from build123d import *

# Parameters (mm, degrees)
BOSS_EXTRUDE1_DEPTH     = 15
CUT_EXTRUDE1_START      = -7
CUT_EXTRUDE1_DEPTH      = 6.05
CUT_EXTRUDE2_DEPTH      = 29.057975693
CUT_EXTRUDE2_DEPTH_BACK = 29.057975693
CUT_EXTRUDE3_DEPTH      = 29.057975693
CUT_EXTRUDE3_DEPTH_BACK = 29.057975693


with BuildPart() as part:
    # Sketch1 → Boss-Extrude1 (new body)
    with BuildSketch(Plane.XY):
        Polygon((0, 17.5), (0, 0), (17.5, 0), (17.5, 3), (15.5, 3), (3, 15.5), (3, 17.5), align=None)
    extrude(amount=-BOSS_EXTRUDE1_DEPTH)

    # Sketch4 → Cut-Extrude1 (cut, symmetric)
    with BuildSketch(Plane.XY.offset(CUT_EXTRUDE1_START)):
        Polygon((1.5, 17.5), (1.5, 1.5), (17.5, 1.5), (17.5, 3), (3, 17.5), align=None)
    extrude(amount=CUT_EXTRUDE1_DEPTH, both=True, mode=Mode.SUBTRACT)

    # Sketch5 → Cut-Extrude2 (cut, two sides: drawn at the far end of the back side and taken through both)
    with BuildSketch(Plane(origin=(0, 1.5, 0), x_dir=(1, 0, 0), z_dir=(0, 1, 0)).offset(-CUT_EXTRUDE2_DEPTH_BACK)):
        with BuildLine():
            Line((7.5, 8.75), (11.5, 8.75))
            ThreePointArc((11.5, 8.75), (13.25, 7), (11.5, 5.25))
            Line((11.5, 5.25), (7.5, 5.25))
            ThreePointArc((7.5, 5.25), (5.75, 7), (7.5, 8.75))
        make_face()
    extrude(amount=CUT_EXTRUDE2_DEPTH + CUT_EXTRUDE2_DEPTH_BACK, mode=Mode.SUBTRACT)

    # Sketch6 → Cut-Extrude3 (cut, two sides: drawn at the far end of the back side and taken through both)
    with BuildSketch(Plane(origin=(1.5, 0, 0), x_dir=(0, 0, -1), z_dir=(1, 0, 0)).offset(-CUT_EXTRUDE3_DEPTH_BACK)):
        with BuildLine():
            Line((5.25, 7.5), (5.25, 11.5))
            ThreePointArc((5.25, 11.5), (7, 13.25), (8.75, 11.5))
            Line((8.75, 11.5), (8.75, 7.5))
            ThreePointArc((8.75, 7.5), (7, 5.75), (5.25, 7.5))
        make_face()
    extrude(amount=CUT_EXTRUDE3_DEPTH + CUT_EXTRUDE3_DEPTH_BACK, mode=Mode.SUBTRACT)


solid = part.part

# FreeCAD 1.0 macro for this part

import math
import FreeCAD as App
import Part
import Sketcher

V = App.Vector

doc = App.newDocument("Part")
body = doc.addObject("PartDesign::Body", "Body")

# Sketch on XY plane
sketch1 = body.newObject("Sketcher::SketchObject", "Sketch")
sketch1.AttachmentSupport = (doc.getObject("XY_Plane"), [""])
sketch1.MapMode = "FlatFace"
sketch1.addGeometry([
    Part.LineSegment(V(0, 17.5, 0), V(0, 0, 0)),  # 0
    Part.LineSegment(V(0, 0, 0), V(17.5, 0, 0)),  # 1
    Part.LineSegment(V(17.5, 0, 0), V(17.5, 3, 0)),  # 2
    Part.LineSegment(V(17.5, 3, 0), V(15.5, 3, 0)),  # 3
    Part.LineSegment(V(15.5, 3, 0), V(3, 15.5, 0)),  # 4
    Part.LineSegment(V(3, 15.5, 0), V(3, 17.5, 0)),  # 5
    Part.LineSegment(V(3, 17.5, 0), V(0, 17.5, 0)),  # 6
], False)
sketch1.addConstraint([
    Sketcher.Constraint("Coincident", 0, 2, 1, 1),
    Sketcher.Constraint("Coincident", 1, 2, 2, 1),
    Sketcher.Constraint("Coincident", 2, 2, 3, 1),
    Sketcher.Constraint("Coincident", 3, 2, 4, 1),
    Sketcher.Constraint("Coincident", 4, 2, 5, 1),
    Sketcher.Constraint("Coincident", 5, 2, 6, 1),
    Sketcher.Constraint("Coincident", 6, 2, 0, 1),
    Sketcher.Constraint("Vertical", 0),
    Sketcher.Constraint("Horizontal", 1),
    Sketcher.Constraint("Vertical", 2),
    Sketcher.Constraint("Horizontal", 3),
    Sketcher.Constraint("Vertical", 5),
    Sketcher.Constraint("Horizontal", 6),
    Sketcher.Constraint("Coincident", 0, 2, -1, 1),
    Sketcher.Constraint("Equal", 1, 0),
    Sketcher.Constraint("Equal", 6, 2),
    Sketcher.Constraint("Equal", 3, 5),
    Sketcher.Constraint("DistanceX", 3, 2, 3, 1, 2.0),
    Sketcher.Constraint("DistanceX", 6, 2, 6, 1, 3.0),
    Sketcher.Constraint("DistanceX", 1, 1, 1, 2, 17.5),
])
pad1 = body.newObject("PartDesign::Pad", "Pad")
pad1.Profile = sketch1
pad1.Length = 15
pad1.Reversed = True

# Sketch on XY plane
sketch2 = body.newObject("Sketcher::SketchObject", "Sketch001")
sketch2.AttachmentSupport = (doc.getObject("XY_Plane"), [""])
sketch2.MapMode = "FlatFace"
sketch2.AttachmentOffset = App.Placement(V(0, 0, -7), App.Rotation())
sketch2.addGeometry([
    Part.LineSegment(V(1.5, 17.5, 0), V(1.5, 1.5, 0)),  # 0
    Part.LineSegment(V(1.5, 1.5, 0), V(17.5, 1.5, 0)),  # 1
    Part.LineSegment(V(17.5, 1.5, 0), V(17.5, 3, 0)),  # 2
    Part.LineSegment(V(17.5, 3, 0), V(3, 17.5, 0)),  # 3
    Part.LineSegment(V(3, 17.5, 0), V(1.5, 17.5, 0)),  # 4
], False)
sketch2.addConstraint([
    Sketcher.Constraint("Coincident", 0, 2, 1, 1),
    Sketcher.Constraint("Coincident", 1, 2, 2, 1),
    Sketcher.Constraint("Coincident", 2, 2, 3, 1),
    Sketcher.Constraint("Coincident", 3, 2, 4, 1),
    Sketcher.Constraint("Coincident", 4, 2, 0, 1),
    Sketcher.Constraint("Vertical", 0),
    Sketcher.Constraint("Horizontal", 1),
    Sketcher.Constraint("Vertical", 2),
    Sketcher.Constraint("Horizontal", 4),
    Sketcher.Constraint("Equal", 1, 0),
    Sketcher.Constraint("Equal", 4, 2),
    Sketcher.Constraint("DistanceX", 1, 1, 1, 2, 16.0),
    Sketcher.Constraint("DistanceX", 4, 2, 4, 1, 1.5),
    Sketcher.Constraint("DistanceY", -1, 1, 2, 2, 3.0),
    Sketcher.Constraint("DistanceX", -1, 1, 3, 2, 3.0),
])
pocket1 = body.newObject("PartDesign::Pocket", "Pocket")
pocket1.Profile = sketch2
pocket1.Length = 12.1
pocket1.Midplane = True

# Sketch on XZ plane
sketch3 = body.newObject("Sketcher::SketchObject", "Sketch002")
sketch3.AttachmentSupport = (doc.getObject("XZ_Plane"), [""])
sketch3.MapMode = "FlatFace"
sketch3.AttachmentOffset = App.Placement(V(0, 0, -1.5), App.Rotation())
sketch3.addGeometry([
    Part.LineSegment(V(11.5, -8.8, 0), V(7.5, -8.8, 0)),
    Part.ArcOfCircle(Part.Circle(V(7.5, -7, 0), V(0, 0, 1), 1.8), math.radians(90), math.radians(270)),
    Part.LineSegment(V(7.5, -5.2, 0), V(11.5, -5.2, 0)),
    Part.ArcOfCircle(Part.Circle(V(11.5, -7, 0), V(0, 0, 1), 1.8), math.radians(-90), math.radians(90)),
], False)
sketch3.addConstraint([
    Sketcher.Constraint("Tangent", 0, 2, 1, 2),
    Sketcher.Constraint("Tangent", 1, 1, 2, 1),
    Sketcher.Constraint("Tangent", 2, 2, 3, 2),
    Sketcher.Constraint("Tangent", 3, 1, 0, 1),
    Sketcher.Constraint("Horizontal", 0),
    Sketcher.Constraint("Horizontal", 2),
    Sketcher.Constraint("DistanceX", 0, 2, 0, 1, 4.0),
    Sketcher.Constraint("Radius", 1, 1.75),
    Sketcher.Constraint("DistanceY", 1, 3, -1, 1, 7.0),
    Sketcher.Constraint("DistanceX", -1, 1, 1, 3, 7.5),
])
pocket2 = body.newObject("PartDesign::Pocket", "Pocket001")
pocket2.Profile = sketch3
pocket2.Type = "ThroughAll"
pocket2.Midplane = True

# Sketch on YZ plane
sketch4 = body.newObject("Sketcher::SketchObject", "Sketch003")
sketch4.AttachmentSupport = (doc.getObject("YZ_Plane"), [""])
sketch4.MapMode = "FlatFace"
sketch4.AttachmentOffset = App.Placement(V(0, 0, 1.5), App.Rotation())
sketch4.addGeometry([
    Part.LineSegment(V(11.5, -5.2, 0), V(7.5, -5.2, 0)),
    Part.ArcOfCircle(Part.Circle(V(7.5, -7, 0), V(0, 0, 1), 1.8), math.radians(90), math.radians(270)),
    Part.LineSegment(V(7.5, -8.8, 0), V(11.5, -8.8, 0)),
    Part.ArcOfCircle(Part.Circle(V(11.5, -7, 0), V(0, 0, 1), 1.8), math.radians(-90), math.radians(90)),
], False)
sketch4.addConstraint([
    Sketcher.Constraint("Tangent", 0, 2, 1, 1),
    Sketcher.Constraint("Tangent", 1, 2, 2, 1),
    Sketcher.Constraint("Tangent", 2, 2, 3, 1),
    Sketcher.Constraint("Tangent", 3, 2, 0, 1),
    Sketcher.Constraint("Horizontal", 0),
    Sketcher.Constraint("Horizontal", 2),
    Sketcher.Constraint("DistanceX", 0, 2, 0, 1, 4.0),
    Sketcher.Constraint("Radius", 1, 1.75),
    Sketcher.Constraint("DistanceY", 1, 3, -1, 1, 7.0),
    Sketcher.Constraint("DistanceX", -1, 1, 1, 3, 7.5),
])
pocket3 = body.newObject("PartDesign::Pocket", "Pocket002")
pocket3.Profile = sketch4
pocket3.Type = "ThroughAll"
pocket3.Midplane = True

doc.recompute()
